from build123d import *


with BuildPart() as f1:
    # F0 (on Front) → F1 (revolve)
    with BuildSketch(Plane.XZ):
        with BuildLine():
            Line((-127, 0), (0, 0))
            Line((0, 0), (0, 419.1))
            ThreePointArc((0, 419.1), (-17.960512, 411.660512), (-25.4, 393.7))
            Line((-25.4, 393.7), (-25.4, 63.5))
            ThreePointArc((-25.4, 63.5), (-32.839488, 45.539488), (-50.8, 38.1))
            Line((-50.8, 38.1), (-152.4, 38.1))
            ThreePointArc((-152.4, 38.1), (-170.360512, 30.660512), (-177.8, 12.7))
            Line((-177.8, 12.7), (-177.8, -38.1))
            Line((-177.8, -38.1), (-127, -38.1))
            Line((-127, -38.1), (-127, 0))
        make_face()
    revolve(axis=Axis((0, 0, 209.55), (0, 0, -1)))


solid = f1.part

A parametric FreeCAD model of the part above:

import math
import FreeCAD as App
import Part
import Sketcher

V = App.Vector
Q = App.Units.Quantity

doc = App.newDocument("Part")
params = doc.addObject("Spreadsheet::Sheet", "Params")
for row, (alias, value) in enumerate([
    ("sketch1_radius", "1 in"),
    ("sketch1_width", "5 in"),
    ("sketch1_width2", "4 in"),
    ("sketch1_height", "13 in"),
    ("sketch1_height2", "16.5 in"),
    ("revolution_angle", "360 deg"),
], start=1):
    params.set(f"A{row}", alias)
    params.set(f"B{row}", "=" + value)
    params.setAlias(f"B{row}", alias)

body = doc.addObject("PartDesign::Body", "Body")

sketch1 = doc.addObject("Sketcher::SketchObject", "Sketch")
body.addObject(sketch1)
sketch1.AttachmentSupport = (doc.XZ_Plane, [""])
sketch1.MapMode = "FlatFace"
sketch1.addGeometry([
    Part.LineSegment(V(-127, 0, 0), V(0, 0, 0)),
    Part.LineSegment(V(0, 0, 0), V(0, 419.1, 0)),
    Part.ArcOfCircle(Part.Circle(V(0.000001, 393.699999, 0), V(0, 0, 1), 25.400001), math.radians(90.000002), math.radians(179.999998)),
    Part.LineSegment(V(-25.4, 393.7, 0), V(-25.4, 63.5, 0)),
    Part.ArcOfCircle(Part.Circle(V(-50.800001, 63.500001, 0), V(0, 0, 1), 25.400001), math.radians(-89.999998), math.radians(-0.000002)),
    Part.LineSegment(V(-50.8, 38.1, 0), V(-152.4, 38.1, 0)),
    Part.ArcOfCircle(Part.Circle(V(-152.399999, 12.699999, 0), V(0, 0, 1), 25.400001), math.radians(90.000002), math.radians(179.999998)),
    Part.LineSegment(V(-177.8, 12.7, 0), V(-177.8, -38.1, 0)),
    Part.LineSegment(V(-177.8, -38.1, 0), V(-127, -38.1, 0)),
    Part.LineSegment(V(-127, -38.1, 0), V(-127, 0, 0)),
], False)
sketch1.addConstraint([
    Sketcher.Constraint("Coincident", 0, 2, 1, 1),
    Sketcher.Constraint("Coincident", 1, 2, 2, 1),
    Sketcher.Constraint("Tangent", 2, 2, 3, 1),
    Sketcher.Constraint("Tangent", 3, 2, 4, 2),
    Sketcher.Constraint("Tangent", 4, 1, 5, 1),
    Sketcher.Constraint("Tangent", 5, 2, 6, 1),
    Sketcher.Constraint("Tangent", 6, 2, 7, 1),
    Sketcher.Constraint("Coincident", 7, 2, 8, 1),
    Sketcher.Constraint("Coincident", 8, 2, 9, 1),
    Sketcher.Constraint("Coincident", 9, 2, 0, 1),
    Sketcher.Constraint("Horizontal", 0),
    Sketcher.Constraint("Vertical", 1),
    Sketcher.Constraint("Vertical", 3),
    Sketcher.Constraint("Horizontal", 5),
    Sketcher.Constraint("Vertical", 7),
    Sketcher.Constraint("Horizontal", 8),
    Sketcher.Constraint("Vertical", 9),
    Sketcher.Constraint("Coincident", 0, 2, -1, 1),
    Sketcher.Constraint("Equal", 2, 4),
    Sketcher.Constraint("Equal", 4, 6),
    Sketcher.Constraint("PointOnObject", 2, 3, -2),
    Sketcher.Constraint("Equal", 8, 7),
    Sketcher.Constraint("Radius", 2, Q("1 in")),
    Sketcher.Constraint("DistanceX", 0, 1, 0, 2, Q("5 in")),
    Sketcher.Constraint("DistanceX", 5, 2, 5, 1, Q("4 in")),
    Sketcher.Constraint("DistanceY", 3, 2, 3, 1, Q("13 in")),
    Sketcher.Constraint("DistanceY", 1, 1, 1, 2, Q("16.5 in")),
])
sketch1.setExpression("Constraints[22]", "Params.sketch1_radius")
sketch1.setExpression("Constraints[23]", "Params.sketch1_width")
sketch1.setExpression("Constraints[24]", "Params.sketch1_width2")
sketch1.setExpression("Constraints[25]", "Params.sketch1_height")
sketch1.setExpression("Constraints[26]", "Params.sketch1_height2")
revolution = doc.addObject("PartDesign::Revolution", "Revolution")
body.addObject(revolution)
revolution.Profile = sketch1
revolution.ReferenceAxis = (sketch1, ["V_Axis"])
revolution.setExpression("Angle", "Params.revolution_angle")

doc.recompute()
